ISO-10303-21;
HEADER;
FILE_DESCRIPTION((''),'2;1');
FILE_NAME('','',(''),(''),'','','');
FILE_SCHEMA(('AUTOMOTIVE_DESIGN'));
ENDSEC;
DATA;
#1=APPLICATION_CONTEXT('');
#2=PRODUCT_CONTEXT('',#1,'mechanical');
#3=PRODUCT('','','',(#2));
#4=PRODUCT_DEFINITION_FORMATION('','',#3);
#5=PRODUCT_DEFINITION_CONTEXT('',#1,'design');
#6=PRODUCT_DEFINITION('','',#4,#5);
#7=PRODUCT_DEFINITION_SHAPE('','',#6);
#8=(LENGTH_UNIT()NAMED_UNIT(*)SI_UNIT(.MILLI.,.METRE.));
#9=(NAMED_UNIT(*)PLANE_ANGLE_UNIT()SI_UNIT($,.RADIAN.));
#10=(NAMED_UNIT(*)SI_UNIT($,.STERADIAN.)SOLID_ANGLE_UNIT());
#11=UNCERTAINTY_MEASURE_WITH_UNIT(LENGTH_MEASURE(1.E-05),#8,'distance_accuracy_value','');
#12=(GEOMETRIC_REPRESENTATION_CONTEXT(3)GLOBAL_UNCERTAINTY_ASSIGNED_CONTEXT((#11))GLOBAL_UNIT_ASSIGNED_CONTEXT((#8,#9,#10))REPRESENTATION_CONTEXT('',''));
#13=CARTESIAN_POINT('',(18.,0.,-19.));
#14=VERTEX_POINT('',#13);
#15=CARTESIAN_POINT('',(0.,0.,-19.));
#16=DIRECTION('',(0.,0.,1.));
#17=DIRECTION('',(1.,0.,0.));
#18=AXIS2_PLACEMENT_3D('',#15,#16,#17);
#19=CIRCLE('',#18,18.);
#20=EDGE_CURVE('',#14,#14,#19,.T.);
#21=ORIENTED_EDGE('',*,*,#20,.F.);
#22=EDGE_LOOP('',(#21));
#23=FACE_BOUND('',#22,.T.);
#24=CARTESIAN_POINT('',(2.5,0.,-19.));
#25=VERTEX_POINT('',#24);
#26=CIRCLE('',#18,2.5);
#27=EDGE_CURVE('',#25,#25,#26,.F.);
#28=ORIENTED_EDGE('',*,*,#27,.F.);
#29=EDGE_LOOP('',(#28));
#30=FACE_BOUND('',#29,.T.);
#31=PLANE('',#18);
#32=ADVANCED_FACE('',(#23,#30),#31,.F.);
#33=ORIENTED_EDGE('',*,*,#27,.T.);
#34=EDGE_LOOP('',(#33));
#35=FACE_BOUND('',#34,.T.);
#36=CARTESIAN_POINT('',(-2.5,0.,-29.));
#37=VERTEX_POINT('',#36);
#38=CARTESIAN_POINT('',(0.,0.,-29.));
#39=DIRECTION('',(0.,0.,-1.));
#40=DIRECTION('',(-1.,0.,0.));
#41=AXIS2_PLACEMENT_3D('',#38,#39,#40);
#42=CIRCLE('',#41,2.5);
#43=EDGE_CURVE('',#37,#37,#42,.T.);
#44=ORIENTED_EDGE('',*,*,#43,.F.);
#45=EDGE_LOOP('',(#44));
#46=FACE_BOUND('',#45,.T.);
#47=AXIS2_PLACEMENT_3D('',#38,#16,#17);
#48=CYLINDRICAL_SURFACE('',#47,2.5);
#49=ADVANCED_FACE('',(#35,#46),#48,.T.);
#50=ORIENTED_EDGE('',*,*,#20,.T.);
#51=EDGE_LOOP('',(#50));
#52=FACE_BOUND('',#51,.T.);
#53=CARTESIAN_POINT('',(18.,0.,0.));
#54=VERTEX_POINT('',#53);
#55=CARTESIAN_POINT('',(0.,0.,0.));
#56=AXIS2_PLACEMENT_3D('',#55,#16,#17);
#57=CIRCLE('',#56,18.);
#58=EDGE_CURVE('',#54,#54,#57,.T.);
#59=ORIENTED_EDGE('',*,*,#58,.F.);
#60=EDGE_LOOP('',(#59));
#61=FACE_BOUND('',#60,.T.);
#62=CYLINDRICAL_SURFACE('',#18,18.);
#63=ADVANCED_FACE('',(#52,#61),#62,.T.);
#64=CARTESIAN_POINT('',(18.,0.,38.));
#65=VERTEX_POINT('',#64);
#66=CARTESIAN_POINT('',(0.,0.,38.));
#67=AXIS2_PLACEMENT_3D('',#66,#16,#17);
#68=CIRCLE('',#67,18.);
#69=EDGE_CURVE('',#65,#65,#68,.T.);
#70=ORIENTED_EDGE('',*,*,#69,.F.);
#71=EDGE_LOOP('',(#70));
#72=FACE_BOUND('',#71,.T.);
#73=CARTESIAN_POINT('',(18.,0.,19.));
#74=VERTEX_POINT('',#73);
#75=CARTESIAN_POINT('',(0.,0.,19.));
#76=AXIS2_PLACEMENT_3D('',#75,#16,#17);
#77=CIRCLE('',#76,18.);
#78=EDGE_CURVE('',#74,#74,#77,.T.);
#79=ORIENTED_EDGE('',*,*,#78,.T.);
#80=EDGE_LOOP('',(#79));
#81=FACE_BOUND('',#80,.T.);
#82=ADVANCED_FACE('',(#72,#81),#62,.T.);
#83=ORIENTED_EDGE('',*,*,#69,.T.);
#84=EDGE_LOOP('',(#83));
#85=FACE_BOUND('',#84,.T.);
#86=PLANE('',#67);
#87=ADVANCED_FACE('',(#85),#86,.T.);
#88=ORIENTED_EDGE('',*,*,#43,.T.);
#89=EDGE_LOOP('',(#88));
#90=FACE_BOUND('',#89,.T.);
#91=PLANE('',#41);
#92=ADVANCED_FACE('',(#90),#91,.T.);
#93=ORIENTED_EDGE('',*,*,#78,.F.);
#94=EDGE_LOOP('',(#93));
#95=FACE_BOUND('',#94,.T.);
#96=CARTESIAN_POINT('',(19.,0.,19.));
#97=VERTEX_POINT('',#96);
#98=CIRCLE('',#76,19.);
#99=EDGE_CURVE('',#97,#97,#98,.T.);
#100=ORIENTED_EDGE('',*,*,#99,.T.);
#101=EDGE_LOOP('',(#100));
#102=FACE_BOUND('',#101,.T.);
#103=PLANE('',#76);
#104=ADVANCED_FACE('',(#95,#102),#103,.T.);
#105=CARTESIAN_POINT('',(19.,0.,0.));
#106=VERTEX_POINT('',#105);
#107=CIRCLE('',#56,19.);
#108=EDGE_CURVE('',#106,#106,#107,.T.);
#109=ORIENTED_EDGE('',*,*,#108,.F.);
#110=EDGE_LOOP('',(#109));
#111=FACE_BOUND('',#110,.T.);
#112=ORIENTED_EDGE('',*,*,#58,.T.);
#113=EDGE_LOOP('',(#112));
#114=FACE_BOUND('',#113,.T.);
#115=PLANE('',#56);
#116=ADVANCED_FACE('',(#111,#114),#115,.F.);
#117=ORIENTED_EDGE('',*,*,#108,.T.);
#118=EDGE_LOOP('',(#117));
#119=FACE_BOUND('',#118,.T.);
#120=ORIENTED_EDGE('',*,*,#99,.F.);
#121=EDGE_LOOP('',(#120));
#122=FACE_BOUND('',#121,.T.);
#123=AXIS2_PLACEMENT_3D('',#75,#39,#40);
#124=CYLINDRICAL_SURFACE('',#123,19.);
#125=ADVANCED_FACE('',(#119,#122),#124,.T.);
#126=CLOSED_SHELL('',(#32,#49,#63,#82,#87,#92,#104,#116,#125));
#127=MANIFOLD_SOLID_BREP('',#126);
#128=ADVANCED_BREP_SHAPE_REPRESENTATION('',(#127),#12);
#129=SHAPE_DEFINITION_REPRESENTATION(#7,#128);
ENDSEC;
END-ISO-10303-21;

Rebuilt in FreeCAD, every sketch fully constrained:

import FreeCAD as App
import Part
import Sketcher
Q = App.Units.Quantity

doc = App.newDocument("Part")
body = doc.addObject("PartDesign::Body", "Body")

# Sketch on XY plane
sketch1 = doc.addObject("Sketcher::SketchObject", "Sketch")
body.addObject(sketch1)
sketch1.AttachmentSupport = (doc.XY_Plane, [""])
sketch1.MapMode = "FlatFace"
sketch1.addGeometry([
    Part.Circle(App.Vector(0, 0, 0), App.Vector(0, 0, 1), 19),
    Part.Circle(App.Vector(0, 0, 0), App.Vector(0, 0, 1), 18),
], False)
sketch1.addConstraint([
    Sketcher.Constraint("Coincident", 0, 3, -1, 1),
    Sketcher.Constraint("Coincident", 1, 3, -1, 1),
    Sketcher.Constraint("Diameter", 0, Q("38 mm")),
    Sketcher.Constraint("Diameter", 1, Q("36 mm")),
])
pad1 = doc.addObject("PartDesign::Pad", "Pad")
body.addObject(pad1)
pad1.Profile = sketch1
pad1.Length = 19

# Sketch on XY plane
sketch2 = doc.addObject("Sketcher::SketchObject", "Sketch001")
body.addObject(sketch2)
sketch2.AttachmentSupport = (doc.XY_Plane, [""])
sketch2.MapMode = "FlatFace"
sketch2.addGeometry(Part.Circle(App.Vector(0, 0, 0), App.Vector(0, 0, 1), 18), False)
sketch2.addConstraint([
    Sketcher.Constraint("Coincident", 0, 3, -1, 1),
    Sketcher.Constraint("Diameter", 0, Q("36 mm")),
])
pad2 = doc.addObject("PartDesign::Pad", "Pad001")
body.addObject(pad2)
pad2.Profile = sketch2
pad2.Type = "TwoLengths"
pad2.Length = 38
pad2.Length2 = 19

# Sketch on XY plane
sketch3 = doc.addObject("Sketcher::SketchObject", "Sketch002")
body.addObject(sketch3)
sketch3.AttachmentSupport = (doc.XY_Plane, [""])
sketch3.MapMode = "FlatFace"
sketch3.AttachmentOffset = App.Placement(App.Vector(0, 0, -19), App.Rotation())
sketch3.addGeometry(Part.Circle(App.Vector(0, 0, 0), App.Vector(0, 0, 1), 2.5), False)
sketch3.addConstraint([
    Sketcher.Constraint("Coincident", 0, 3, -1, 1),
    Sketcher.Constraint("Diameter", 0, Q("5 mm")),
])
pad3 = doc.addObject("PartDesign::Pad", "Pad002")
body.addObject(pad3)
pad3.Profile = sketch3
pad3.Length = 10
pad3.Reversed = True

doc.recompute()
